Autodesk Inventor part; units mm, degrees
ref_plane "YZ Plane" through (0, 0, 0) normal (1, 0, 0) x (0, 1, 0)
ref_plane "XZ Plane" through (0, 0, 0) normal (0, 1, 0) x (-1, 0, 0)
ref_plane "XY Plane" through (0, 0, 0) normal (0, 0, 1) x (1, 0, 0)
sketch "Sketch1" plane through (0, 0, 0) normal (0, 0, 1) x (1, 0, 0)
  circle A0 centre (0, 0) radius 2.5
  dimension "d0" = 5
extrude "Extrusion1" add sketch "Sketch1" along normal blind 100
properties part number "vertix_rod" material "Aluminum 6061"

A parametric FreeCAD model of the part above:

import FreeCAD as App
import Part
import Sketcher
Q = App.Units.Quantity

doc = App.newDocument("Part")
body = doc.addObject("PartDesign::Body", "Body")

sketch1 = body.newObject("Sketcher::SketchObject", "Sketch")
sketch1.AttachmentSupport = (doc.getObject("XY_Plane"), [""])
sketch1.MapMode = "FlatFace"
sketch1.addGeometry(Part.Circle(App.Vector(0, 0, 0), App.Vector(0, 0, 1), 2.5), False)
sketch1.addConstraint([
    Sketcher.Constraint("Coincident", 0, 3, -1, 1),
    Sketcher.Constraint("Diameter", 0, Q("5 mm")),
])
pad1 = body.newObject("PartDesign::Pad", "Pad")
pad1.Profile = sketch1
pad1.Length = 100

doc.recompute()
